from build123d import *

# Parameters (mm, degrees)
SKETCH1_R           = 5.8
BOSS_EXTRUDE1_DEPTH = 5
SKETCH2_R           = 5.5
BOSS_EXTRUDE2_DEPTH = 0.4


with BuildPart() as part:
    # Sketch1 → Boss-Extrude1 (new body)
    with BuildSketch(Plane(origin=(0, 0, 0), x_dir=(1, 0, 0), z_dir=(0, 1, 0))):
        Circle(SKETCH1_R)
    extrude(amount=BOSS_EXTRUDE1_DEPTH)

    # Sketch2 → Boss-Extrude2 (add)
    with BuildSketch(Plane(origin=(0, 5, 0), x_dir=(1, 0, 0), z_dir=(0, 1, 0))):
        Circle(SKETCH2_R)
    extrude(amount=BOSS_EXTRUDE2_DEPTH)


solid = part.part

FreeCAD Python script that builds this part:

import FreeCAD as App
import Part
import Sketcher
from FreeCAD import Vector

doc = App.newDocument("Part")
body = doc.addObject("PartDesign::Body", "Body")

sketch1 = body.newObject("Sketcher::SketchObject", "Sketch")
sketch1.AttachmentSupport = (doc.getObject("XZ_Plane"), [""])
sketch1.MapMode = "FlatFace"
sketch1.addGeometry(Part.Circle(Vector(0, 0, 0), Vector(0, 0, 1), 5.8), False)
sketch1.addConstraint([
    Sketcher.Constraint("Coincident", 0, 3, -1, 1),
    Sketcher.Constraint("Diameter", 0, 11.6),
])
pad1 = body.newObject("PartDesign::Pad", "Pad")
pad1.Profile = sketch1
pad1.Length = 5
pad1.Reversed = True

sketch2 = body.newObject("Sketcher::SketchObject", "Sketch001")
sketch2.AttachmentSupport = (doc.getObject("XZ_Plane"), [""])
sketch2.MapMode = "FlatFace"
sketch2.AttachmentOffset = App.Placement(Vector(0, 0, -5), App.Rotation())
sketch2.addGeometry(Part.Circle(Vector(0, 0, 0), Vector(0, 0, 1), 5.5), False)
sketch2.addConstraint([
    Sketcher.Constraint("Coincident", 0, 3, -1, 1),
    Sketcher.Constraint("Diameter", 0, 11.0),
])
pad2 = body.newObject("PartDesign::Pad", "Pad001")
pad2.Profile = sketch2
pad2.Length = 0.4
pad2.Reversed = True

doc.recompute()
